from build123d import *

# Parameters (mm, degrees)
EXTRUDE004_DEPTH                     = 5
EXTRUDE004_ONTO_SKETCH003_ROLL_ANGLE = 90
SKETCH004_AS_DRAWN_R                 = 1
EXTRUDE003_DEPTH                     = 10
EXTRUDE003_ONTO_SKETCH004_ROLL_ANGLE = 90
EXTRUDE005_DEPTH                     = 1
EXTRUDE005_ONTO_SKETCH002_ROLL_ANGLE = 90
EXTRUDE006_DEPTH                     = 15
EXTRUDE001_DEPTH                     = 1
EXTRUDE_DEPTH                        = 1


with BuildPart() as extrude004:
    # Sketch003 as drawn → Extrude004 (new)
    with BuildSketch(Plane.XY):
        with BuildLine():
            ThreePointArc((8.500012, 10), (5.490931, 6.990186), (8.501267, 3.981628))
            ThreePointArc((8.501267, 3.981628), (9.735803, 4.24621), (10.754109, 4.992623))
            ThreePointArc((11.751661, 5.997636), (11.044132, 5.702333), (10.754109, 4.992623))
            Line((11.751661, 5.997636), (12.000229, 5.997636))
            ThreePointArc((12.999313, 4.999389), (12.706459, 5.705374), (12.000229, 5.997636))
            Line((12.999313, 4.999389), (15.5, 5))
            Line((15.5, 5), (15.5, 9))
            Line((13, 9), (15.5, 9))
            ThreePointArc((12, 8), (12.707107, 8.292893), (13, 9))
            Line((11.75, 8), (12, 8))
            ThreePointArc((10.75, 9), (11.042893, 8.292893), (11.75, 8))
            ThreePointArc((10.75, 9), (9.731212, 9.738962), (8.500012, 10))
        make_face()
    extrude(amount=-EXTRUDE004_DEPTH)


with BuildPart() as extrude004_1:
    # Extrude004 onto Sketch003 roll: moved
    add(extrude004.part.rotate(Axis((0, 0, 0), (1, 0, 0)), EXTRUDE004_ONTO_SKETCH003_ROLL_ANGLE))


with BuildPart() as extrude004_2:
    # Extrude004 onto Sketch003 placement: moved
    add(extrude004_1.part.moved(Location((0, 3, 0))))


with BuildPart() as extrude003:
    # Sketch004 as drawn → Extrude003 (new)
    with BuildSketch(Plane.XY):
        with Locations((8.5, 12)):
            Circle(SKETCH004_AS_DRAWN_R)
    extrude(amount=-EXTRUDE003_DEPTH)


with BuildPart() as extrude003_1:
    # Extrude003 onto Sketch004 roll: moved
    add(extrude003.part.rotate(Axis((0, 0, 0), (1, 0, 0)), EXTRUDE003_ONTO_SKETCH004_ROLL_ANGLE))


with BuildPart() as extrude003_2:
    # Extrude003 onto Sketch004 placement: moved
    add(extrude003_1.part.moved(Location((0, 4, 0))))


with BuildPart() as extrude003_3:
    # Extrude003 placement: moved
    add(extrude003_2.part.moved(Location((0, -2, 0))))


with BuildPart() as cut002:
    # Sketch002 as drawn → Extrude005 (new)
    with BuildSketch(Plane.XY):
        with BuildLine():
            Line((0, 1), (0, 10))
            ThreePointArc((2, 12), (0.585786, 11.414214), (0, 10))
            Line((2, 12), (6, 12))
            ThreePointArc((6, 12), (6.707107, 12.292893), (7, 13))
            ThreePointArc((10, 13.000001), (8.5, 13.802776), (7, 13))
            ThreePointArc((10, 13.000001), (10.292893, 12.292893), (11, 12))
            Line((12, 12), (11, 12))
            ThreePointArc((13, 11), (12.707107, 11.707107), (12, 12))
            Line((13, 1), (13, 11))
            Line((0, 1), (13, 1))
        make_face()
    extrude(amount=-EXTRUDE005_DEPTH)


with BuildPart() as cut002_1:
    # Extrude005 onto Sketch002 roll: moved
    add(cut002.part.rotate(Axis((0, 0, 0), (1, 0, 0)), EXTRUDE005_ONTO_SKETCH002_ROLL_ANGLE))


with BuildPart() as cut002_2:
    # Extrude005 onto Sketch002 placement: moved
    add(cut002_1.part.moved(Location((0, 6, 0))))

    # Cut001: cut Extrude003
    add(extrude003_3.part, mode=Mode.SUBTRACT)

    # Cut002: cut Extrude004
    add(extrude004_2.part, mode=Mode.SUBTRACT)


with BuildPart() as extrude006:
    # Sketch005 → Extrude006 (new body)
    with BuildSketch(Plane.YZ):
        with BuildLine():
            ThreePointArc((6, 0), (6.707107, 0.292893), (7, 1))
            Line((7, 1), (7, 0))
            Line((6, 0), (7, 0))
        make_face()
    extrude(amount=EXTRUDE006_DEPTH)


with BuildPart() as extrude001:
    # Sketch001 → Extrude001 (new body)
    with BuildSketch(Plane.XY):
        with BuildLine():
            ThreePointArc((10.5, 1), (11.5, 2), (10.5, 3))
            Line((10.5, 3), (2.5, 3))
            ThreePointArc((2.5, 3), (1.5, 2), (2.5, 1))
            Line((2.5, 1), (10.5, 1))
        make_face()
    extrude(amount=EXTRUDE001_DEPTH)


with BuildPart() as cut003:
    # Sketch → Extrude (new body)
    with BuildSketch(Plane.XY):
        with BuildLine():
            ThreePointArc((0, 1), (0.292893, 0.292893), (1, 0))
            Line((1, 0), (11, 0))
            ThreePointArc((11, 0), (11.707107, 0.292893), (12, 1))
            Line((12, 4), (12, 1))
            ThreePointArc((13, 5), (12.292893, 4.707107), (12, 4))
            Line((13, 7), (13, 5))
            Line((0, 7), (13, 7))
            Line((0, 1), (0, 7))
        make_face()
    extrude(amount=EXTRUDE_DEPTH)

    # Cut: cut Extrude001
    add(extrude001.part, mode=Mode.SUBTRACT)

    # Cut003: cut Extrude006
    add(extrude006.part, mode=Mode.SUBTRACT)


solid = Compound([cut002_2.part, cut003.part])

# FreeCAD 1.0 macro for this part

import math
import FreeCAD as App
import Part
import Sketcher
Q = App.Units.Quantity

doc = App.newDocument("Part")
params = doc.addObject("Spreadsheet::Sheet", "Params")
for row, (alias, value) in enumerate([
    ("sketch1_radius", "0.999999 mm"),
    ("sketch1_height", "4 mm"),
    ("sketch1_width", "2.5 mm"),
    ("sketch1_width2", "0.25 mm"),
    ("pad1_length", "5 mm"),
    ("sketch2_diameter", "2 mm"),
    ("pad2_length", "10 mm"),
    ("sketch3_radius", "0.999999 mm"),
    ("sketch3_radius2", "1.999999 mm"),
    ("sketch3_width", "13 mm"),
    ("sketch3_width2", "1 mm"),
    ("sketch3_width3", "4 mm"),
    ("pad3_length", "1 mm"),
    ("sketch4_radius", "0.999999 mm"),
    ("pad4_length", "15 mm"),
    ("sketch5_radius", "1 mm"),
    ("sketch5_width", "8 mm"),
    ("pad5_length", "1 mm"),
    ("sketch6_radius", "0.999999 mm"),
    ("sketch6_width", "10 mm"),
    ("sketch6_width2", "13 mm"),
    ("sketch6_height", "3 mm"),
    ("sketch6_height2", "2 mm"),
    ("pad6_length", "1 mm"),
], start=1):
    params.set(f"A{row}", alias)
    params.set(f"B{row}", "=" + value)
    params.setAlias(f"B{row}", alias)

body = doc.addObject("PartDesign::Body", "Body")

# Sketch on XY plane
sketch1 = body.newObject("Sketcher::SketchObject", "Sketch")
sketch1.AttachmentSupport = (doc.getObject("XY_Plane"), [""])
sketch1.MapMode = "FlatFace"
sketch1.addGeometry(Part.ArcOfCircle(Part.Circle(App.Vector(8.5, 6.99, 0), App.Vector(0, 0, 1), 3.01), math.radians(90), math.radians(270)), False)
sketch1.addGeometry(Part.ArcOfCircle(Part.Circle(App.Vector(8.5, 7, 0), App.Vector(0, 0, 1), 3.02), math.radians(-90), math.radians(-42)), False)
sketch1.addGeometry(Part.ArcOfCircle(Part.Circle(App.Vector(11.75, 5, 0), App.Vector(0, 0, 1), 1), math.radians(90), math.radians(180)), False)
sketch1.addGeometry(Part.LineSegment(App.Vector(11.75, 6, 0), App.Vector(12, 6, 0)), False)
sketch1.addGeometry(Part.ArcOfCircle(Part.Circle(App.Vector(12, 5, 0), App.Vector(0, 0, 1), 1), math.radians(0), math.radians(90)), False)
sketch1.addGeometry(Part.LineSegment(App.Vector(13, 5, 0), App.Vector(15.5, 5, 0)), False)
sketch1.addGeometry(Part.LineSegment(App.Vector(15.5, 5, 0), App.Vector(15.5, 9, 0)), False)
sketch1.addGeometry(Part.LineSegment(App.Vector(15.5, 9, 0), App.Vector(13, 9, 0)), False)
sketch1.addGeometry(Part.ArcOfCircle(Part.Circle(App.Vector(12, 9, 0), App.Vector(0, 0, 1), 1), math.radians(-90), math.radians(0)), False)
sketch1.addGeometry(Part.LineSegment(App.Vector(12, 8, 0), App.Vector(11.75, 8, 0)), False)
sketch1.addGeometry(Part.ArcOfCircle(Part.Circle(App.Vector(11.75, 9, 0), App.Vector(0, 0, 1), 1), math.radians(180), math.radians(270)), False)
sketch1.addGeometry(Part.ArcOfCircle(Part.Circle(App.Vector(8.5, 6.97, 0), App.Vector(0, 0, 1), 3.03), math.radians(42), math.radians(90)), False)
sketch1.addConstraint(Sketcher.Constraint("Coincident", 0, 2, 1, 1))
sketch1.addConstraint(Sketcher.Constraint("Coincident", 1, 2, 2, 2))
sketch1.addConstraint(Sketcher.Constraint("Coincident", 2, 1, 3, 1))
sketch1.addConstraint(Sketcher.Constraint("Coincident", 3, 2, 4, 2))
sketch1.addConstraint(Sketcher.Constraint("Coincident", 4, 1, 5, 1))
sketch1.addConstraint(Sketcher.Constraint("Coincident", 5, 2, 6, 1))
sketch1.addConstraint(Sketcher.Constraint("Coincident", 6, 2, 7, 1))
sketch1.addConstraint(Sketcher.Constraint("Coincident", 7, 2, 8, 2))
sketch1.addConstraint(Sketcher.Constraint("Tangent", 8, 1, 9, 1))
sketch1.addConstraint(Sketcher.Constraint("Tangent", 9, 2, 10, 2))
sketch1.addConstraint(Sketcher.Constraint("Coincident", 10, 1, 11, 1))
sketch1.addConstraint(Sketcher.Constraint("Coincident", 11, 2, 0, 1))
sketch1.addConstraint(Sketcher.Constraint("Horizontal", 3))
sketch1.addConstraint(Sketcher.Constraint("Vertical", 6))
sketch1.addConstraint(Sketcher.Constraint("Horizontal", 7))
sketch1.addConstraint(Sketcher.Constraint("Horizontal", 9))
sketch1.addConstraint(Sketcher.Constraint("Equal", 8, 10))
sketch1.addConstraint(Sketcher.Constraint("Horizontal", 10, 3, 6, 2))
sketch1.addConstraint(Sketcher.Constraint("Horizontal", 7, 2, 10, 1))
sketch1.addConstraint(Sketcher.Constraint("Radius", 8, Q("0.999999 mm")))
sketch1.addConstraint(Sketcher.Constraint("DistanceY", 6, 1, 6, 2, Q("4 mm")))
sketch1.addConstraint(Sketcher.Constraint("DistanceX", 7, 2, 7, 1, Q("2.5 mm")))
sketch1.addConstraint(Sketcher.Constraint("DistanceX", -1, 1, 8, 3, Q("12.000001 mm")))
sketch1.addConstraint(Sketcher.Constraint("DistanceY", -1, 1, 8, 3, Q("8.999999 mm")))
sketch1.addConstraint(Sketcher.Constraint("DistanceY", -1, 1, 11, 2, Q("10 mm")))
sketch1.addConstraint(Sketcher.Constraint("DistanceX", 9, 2, 9, 1, Q("0.25 mm")))
sketch1.addConstraint(Sketcher.Constraint("DistanceX", -1, 1, 1, 3, Q("8.499998 mm")))
sketch1.addConstraint(Sketcher.Constraint("Radius", 2, Q("0.999228 mm")))
sketch1.addConstraint(Sketcher.Constraint("Radius", 0, Q("3.009186 mm")))
sketch1.addConstraint(Sketcher.Constraint("Radius", 1, Q("3.018376 mm")))
sketch1.addConstraint(Sketcher.Constraint("Radius", 4, Q("0.998856 mm")))
sketch1.addConstraint(Sketcher.Constraint("Radius", 11, Q("3.028663 mm")))
sketch1.addConstraint(Sketcher.Constraint("DistanceX", 3, 1, 3, 2, Q("0.248568 mm")))
sketch1.addConstraint(Sketcher.Constraint("DistanceX", -1, 1, 2, 3, Q("11.75332 mm")))
sketch1.addConstraint(Sketcher.Constraint("DistanceY", -1, 1, 2, 3, Q("4.998409 mm")))
sketch1.addConstraint(Sketcher.Constraint("DistanceX", -1, 1, 2, 1, Q("11.751661 mm")))
sketch1.addConstraint(Sketcher.Constraint("DistanceY", -1, 1, 4, 1, Q("4.999389 mm")))
sketch1.addConstraint(Sketcher.Constraint("DistanceX", -1, 1, 11, 2, Q("8.500012 mm")))
sketch1.addConstraint(Sketcher.Constraint("DistanceX", 1, 3, 0, 3, Q("0.000119 mm")))
sketch1.addConstraint(Sketcher.Constraint("DistanceX", 0, 3, 4, 3, Q("3.500341 mm")))
sketch1.addConstraint(Sketcher.Constraint("DistanceX", 0, 3, 0, 2, Q("0.00115 mm")))
sketch1.setExpression("Constraints[19]", "Params.sketch1_radius")
sketch1.setExpression("Constraints[20]", "Params.sketch1_height")
sketch1.setExpression("Constraints[21]", "Params.sketch1_width")
sketch1.setExpression("Constraints[25]", "Params.sketch1_width2")
pad1 = body.newObject("PartDesign::Pad", "Pad")
pad1.Profile = sketch1
pad1.setExpression("Length", "Params.pad1_length")
pad1.Reversed = True
body2 = doc.addObject("PartDesign::Body", "Body001")
doc.recompute()

body.Placement = App.Placement(App.Vector(0, 0, 0), App.Rotation(App.Vector(1, 0, 0), 90))
boolean = body2.newObject("PartDesign::Boolean", "Boolean")
boolean.Type = "Fuse"
boolean.addObjects([body])
body3 = doc.addObject("PartDesign::Body", "Body002")
doc.recompute()

body2.Placement = App.Placement(App.Vector(0, 3, 0), App.Rotation(App.Vector(0, 0, 1), 0))
boolean2 = body3.newObject("PartDesign::Boolean", "Boolean001")
boolean2.Type = "Fuse"
boolean2.addObjects([body2])
body4 = doc.addObject("PartDesign::Body", "Body003")

# Sketch on XY plane
sketch2 = body4.newObject("Sketcher::SketchObject", "Sketch001")
sketch2.AttachmentSupport = (doc.getObject("XY_Plane003"), [""])
sketch2.MapMode = "FlatFace"
sketch2.addGeometry(Part.Circle(App.Vector(8.5, 12, 0), App.Vector(0, 0, 1), 1), False)
sketch2.addConstraint(Sketcher.Constraint("Diameter", 0, Q("2 mm")))
sketch2.addConstraint(Sketcher.Constraint("DistanceY", -1, 1, 0, 3, Q("12 mm")))
sketch2.addConstraint(Sketcher.Constraint("DistanceX", -1, 1, 0, 3, Q("8.5 mm")))
sketch2.setExpression("Constraints[0]", "Params.sketch2_diameter")
pad2 = body4.newObject("PartDesign::Pad", "Pad001")
pad2.Profile = sketch2
pad2.setExpression("Length", "Params.pad2_length")
pad2.Reversed = True
body5 = doc.addObject("PartDesign::Body", "Body004")
doc.recompute()

body4.Placement = App.Placement(App.Vector(0, 0, 0), App.Rotation(App.Vector(1, 0, 0), 90))
boolean3 = body5.newObject("PartDesign::Boolean", "Boolean002")
boolean3.Type = "Fuse"
boolean3.addObjects([body4])
body6 = doc.addObject("PartDesign::Body", "Body005")
doc.recompute()

body5.Placement = App.Placement(App.Vector(0, 4, 0), App.Rotation(App.Vector(0, 0, 1), 0))
boolean4 = body6.newObject("PartDesign::Boolean", "Boolean003")
boolean4.Type = "Fuse"
boolean4.addObjects([body5])
body7 = doc.addObject("PartDesign::Body", "Body006")
doc.recompute()

body6.Placement = App.Placement(App.Vector(0, -2, 0), App.Rotation(App.Vector(0, 0, 1), 0))
boolean5 = body7.newObject("PartDesign::Boolean", "Boolean004")
boolean5.Type = "Fuse"
boolean5.addObjects([body6])
body8 = doc.addObject("PartDesign::Body", "Body007")

# Sketch on XY plane
sketch3 = body8.newObject("Sketcher::SketchObject", "Sketch002")
sketch3.AttachmentSupport = (doc.getObject("XY_Plane007"), [""])
sketch3.MapMode = "FlatFace"
sketch3.addGeometry(Part.LineSegment(App.Vector(0, 10, 0), App.Vector(0, 1, 0)), False)
sketch3.addGeometry(Part.LineSegment(App.Vector(0, 1, 0), App.Vector(13, 1, 0)), False)
sketch3.addGeometry(Part.LineSegment(App.Vector(13, 1, 0), App.Vector(13, 11, 0)), False)
sketch3.addGeometry(Part.ArcOfCircle(Part.Circle(App.Vector(12, 11, 0), App.Vector(0, 0, 1), 1), math.radians(0), math.radians(90)), False)
sketch3.addGeometry(Part.LineSegment(App.Vector(12, 12, 0), App.Vector(11, 12, 0)), False)
sketch3.addGeometry(Part.ArcOfCircle(Part.Circle(App.Vector(11, 13, 0), App.Vector(0, 0, 1), 1), math.radians(180), math.radians(270)), False)
sketch3.addGeometry(Part.ArcOfCircle(Part.Circle(App.Vector(8.5, 12, 0), App.Vector(0, 0, 1), 1.8), math.radians(34), math.radians(146)), False)
sketch3.addGeometry(Part.ArcOfCircle(Part.Circle(App.Vector(6, 13, 0), App.Vector(0, 0, 1), 1), math.radians(-90), math.radians(0)), False)
sketch3.addGeometry(Part.LineSegment(App.Vector(6, 12, 0), App.Vector(2, 12, 0)), False)
sketch3.addGeometry(Part.ArcOfCircle(Part.Circle(App.Vector(2, 10, 0), App.Vector(0, 0, 1), 2), math.radians(90), math.radians(180)), False)
sketch3.addConstraint(Sketcher.Constraint("Coincident", 0, 2, 1, 1))
sketch3.addConstraint(Sketcher.Constraint("Coincident", 1, 2, 2, 1))
sketch3.addConstraint(Sketcher.Constraint("Tangent", 2, 2, 3, 1))
sketch3.addConstraint(Sketcher.Constraint("Tangent", 3, 2, 4, 1))
sketch3.addConstraint(Sketcher.Constraint("Tangent", 4, 2, 5, 2))
sketch3.addConstraint(Sketcher.Constraint("Coincident", 5, 1, 6, 1))
sketch3.addConstraint(Sketcher.Constraint("Coincident", 6, 2, 7, 2))
sketch3.addConstraint(Sketcher.Constraint("Tangent", 7, 1, 8, 1))
sketch3.addConstraint(Sketcher.Constraint("Tangent", 8, 2, 9, 1))
sketch3.addConstraint(Sketcher.Constraint("Tangent", 9, 2, 0, 1))
sketch3.addConstraint(Sketcher.Constraint("Vertical", 0))
sketch3.addConstraint(Sketcher.Constraint("Horizontal", 1))
sketch3.addConstraint(Sketcher.Constraint("Vertical", 2))
sketch3.addConstraint(Sketcher.Constraint("Horizontal", 4))
sketch3.addConstraint(Sketcher.Constraint("Horizontal", 8))
sketch3.addConstraint(Sketcher.Constraint("Equal", 3, 5))
sketch3.addConstraint(Sketcher.Constraint("Equal", 5, 7))
sketch3.addConstraint(Sketcher.Constraint("PointOnObject", 0, 2, -2))
sketch3.addConstraint(Sketcher.Constraint("Horizontal", 5, 3, 7, 3))
sketch3.addConstraint(Sketcher.Constraint("Horizontal", 6, 3, 3, 2))
sketch3.addConstraint(Sketcher.Constraint("Horizontal", 7, 3, 5, 1))
sketch3.addConstraint(Sketcher.Constraint("Horizontal", 5, 1, 6, 2))
sketch3.addConstraint(Sketcher.Constraint("Radius", 3, Q("0.999999 mm")))
sketch3.addConstraint(Sketcher.Constraint("Radius", 9, Q("1.999999 mm")))
sketch3.addConstraint(Sketcher.Constraint("DistanceX", 1, 1, 1, 2, Q("13 mm")))
sketch3.addConstraint(Sketcher.Constraint("DistanceX", 4, 2, 4, 1, Q("1 mm")))
sketch3.addConstraint(Sketcher.Constraint("DistanceX", 8, 2, 8, 1, Q("4 mm")))
sketch3.addConstraint(Sketcher.Constraint("DistanceY", 0, 2, 0, 1, Q("9 mm")))
sketch3.addConstraint(Sketcher.Constraint("DistanceY", -1, 1, 3, 3, Q("11.000001 mm")))
sketch3.setExpression("Constraints[22]", "Params.sketch3_radius")
sketch3.setExpression("Constraints[23]", "Params.sketch3_radius2")
sketch3.setExpression("Constraints[24]", "Params.sketch3_width")
sketch3.setExpression("Constraints[25]", "Params.sketch3_width2")
sketch3.setExpression("Constraints[26]", "Params.sketch3_width3")
pad3 = body8.newObject("PartDesign::Pad", "Pad002")
pad3.Profile = sketch3
pad3.setExpression("Length", "Params.pad3_length")
pad3.Reversed = True
body9 = doc.addObject("PartDesign::Body", "Body008")
doc.recompute()

body8.Placement = App.Placement(App.Vector(0, 0, 0), App.Rotation(App.Vector(1, 0, 0), 90))
boolean6 = body9.newObject("PartDesign::Boolean", "Boolean005")
boolean6.Type = "Fuse"
boolean6.addObjects([body8])
body10 = doc.addObject("PartDesign::Body", "Body009")
doc.recompute()

body9.Placement = App.Placement(App.Vector(0, 6, 0), App.Rotation(App.Vector(0, 0, 1), 0))
boolean7 = body10.newObject("PartDesign::Boolean", "Boolean006")
boolean7.Type = "Fuse"
boolean7.addObjects([body9])
doc.recompute()

boolean8 = body10.newObject("PartDesign::Boolean", "Boolean007")
boolean8.Type = "Cut"
boolean8.addObjects([body7])
doc.recompute()

boolean9 = body10.newObject("PartDesign::Boolean", "Boolean008")
boolean9.Type = "Cut"
boolean9.addObjects([body3])
body11 = doc.addObject("PartDesign::Body", "Body010")

# Sketch on YZ plane
sketch4 = body11.newObject("Sketcher::SketchObject", "Sketch003")
sketch4.AttachmentSupport = (doc.getObject("YZ_Plane010"), [""])
sketch4.MapMode = "FlatFace"
sketch4.addGeometry(Part.ArcOfCircle(Part.Circle(App.Vector(6, 1, 0), App.Vector(0, 0, 1), 1), math.radians(-90), math.radians(0)), False)
sketch4.addGeometry(Part.LineSegment(App.Vector(6, 0, 0), App.Vector(7, 0, 0)), False)
sketch4.addGeometry(Part.LineSegment(App.Vector(7, 0, 0), App.Vector(7, 1, 0)), False)
sketch4.addConstraint(Sketcher.Constraint("Tangent", 0, 1, 1, 1))
sketch4.addConstraint(Sketcher.Constraint("Coincident", 1, 2, 2, 1))
sketch4.addConstraint(Sketcher.Constraint("Tangent", 2, 2, 0, 2))
sketch4.addConstraint(Sketcher.Constraint("Horizontal", 1))
sketch4.addConstraint(Sketcher.Constraint("Vertical", 2))
sketch4.addConstraint(Sketcher.Constraint("PointOnObject", 0, 1, -1))
sketch4.addConstraint(Sketcher.Constraint("Radius", 0, Q("0.999999 mm")))
sketch4.addConstraint(Sketcher.Constraint("DistanceX", -1, 1, 0, 3, Q("6.000001 mm")))
sketch4.setExpression("Constraints[6]", "Params.sketch4_radius")
pad4 = body11.newObject("PartDesign::Pad", "Pad003")
pad4.Profile = sketch4
pad4.setExpression("Length", "Params.pad4_length")
body12 = doc.addObject("PartDesign::Body", "Body011")

# Sketch on XY plane
sketch5 = body12.newObject("Sketcher::SketchObject", "Sketch004")
sketch5.AttachmentSupport = (doc.getObject("XY_Plane011"), [""])
sketch5.MapMode = "FlatFace"
sketch5.addGeometry(Part.ArcOfCircle(Part.Circle(App.Vector(10.5, 2, 0), App.Vector(0, 0, 1), 1), math.radians(-90), math.radians(90)), False)
sketch5.addGeometry(Part.LineSegment(App.Vector(10.5, 3, 0), App.Vector(2.5, 3, 0)), False)
sketch5.addGeometry(Part.ArcOfCircle(Part.Circle(App.Vector(2.5, 2, 0), App.Vector(0, 0, 1), 1), math.radians(90), math.radians(270)), False)
sketch5.addGeometry(Part.LineSegment(App.Vector(2.5, 1, 0), App.Vector(10.5, 1, 0)), False)
sketch5.addConstraint(Sketcher.Constraint("Tangent", 0, 2, 1, 1))
sketch5.addConstraint(Sketcher.Constraint("Tangent", 1, 2, 2, 1))
sketch5.addConstraint(Sketcher.Constraint("Tangent", 2, 2, 3, 1))
sketch5.addConstraint(Sketcher.Constraint("Tangent", 3, 2, 0, 1))
sketch5.addConstraint(Sketcher.Constraint("Horizontal", 1))
sketch5.addConstraint(Sketcher.Constraint("Horizontal", 3))
sketch5.addConstraint(Sketcher.Constraint("Radius", 0, Q("1 mm")))
sketch5.addConstraint(Sketcher.Constraint("DistanceX", 1, 2, 1, 1, Q("8 mm")))
sketch5.addConstraint(Sketcher.Constraint("DistanceY", -1, 1, 0, 3, Q("2 mm")))
sketch5.addConstraint(Sketcher.Constraint("DistanceX", -1, 1, 0, 3, Q("10.5 mm")))
sketch5.setExpression("Constraints[6]", "Params.sketch5_radius")
sketch5.setExpression("Constraints[7]", "Params.sketch5_width")
pad5 = body12.newObject("PartDesign::Pad", "Pad004")
pad5.Profile = sketch5
pad5.setExpression("Length", "Params.pad5_length")
body13 = doc.addObject("PartDesign::Body", "Body012")

# Sketch on XY plane
sketch6 = body13.newObject("Sketcher::SketchObject", "Sketch005")
sketch6.AttachmentSupport = (doc.getObject("XY_Plane012"), [""])
sketch6.MapMode = "FlatFace"
sketch6.addGeometry(Part.ArcOfCircle(Part.Circle(App.Vector(1, 1, 0), App.Vector(0, 0, 1), 1), math.radians(180), math.radians(270)), False)
sketch6.addGeometry(Part.LineSegment(App.Vector(1, 0, 0), App.Vector(11, 0, 0)), False)
sketch6.addGeometry(Part.ArcOfCircle(Part.Circle(App.Vector(11, 1, 0), App.Vector(0, 0, 1), 1), math.radians(-90), math.radians(0)), False)
sketch6.addGeometry(Part.LineSegment(App.Vector(12, 1, 0), App.Vector(12, 4, 0)), False)
sketch6.addGeometry(Part.ArcOfCircle(Part.Circle(App.Vector(13, 4, 0), App.Vector(0, 0, 1), 1), math.radians(90), math.radians(180)), False)
sketch6.addGeometry(Part.LineSegment(App.Vector(13, 5, 0), App.Vector(13, 7, 0)), False)
sketch6.addGeometry(Part.LineSegment(App.Vector(13, 7, 0), App.Vector(0, 7, 0)), False)
sketch6.addGeometry(Part.LineSegment(App.Vector(0, 7, 0), App.Vector(0, 1, 0)), False)
sketch6.addConstraint(Sketcher.Constraint("Tangent", 0, 2, 1, 1))
sketch6.addConstraint(Sketcher.Constraint("Tangent", 1, 2, 2, 1))
sketch6.addConstraint(Sketcher.Constraint("Tangent", 2, 2, 3, 1))
sketch6.addConstraint(Sketcher.Constraint("Tangent", 3, 2, 4, 2))
sketch6.addConstraint(Sketcher.Constraint("Coincident", 4, 1, 5, 1))
sketch6.addConstraint(Sketcher.Constraint("Coincident", 5, 2, 6, 1))
sketch6.addConstraint(Sketcher.Constraint("Coincident", 6, 2, 7, 1))
sketch6.addConstraint(Sketcher.Constraint("Tangent", 7, 2, 0, 1))
sketch6.addConstraint(Sketcher.Constraint("Horizontal", 1))
sketch6.addConstraint(Sketcher.Constraint("Vertical", 3))
sketch6.addConstraint(Sketcher.Constraint("Vertical", 5))
sketch6.addConstraint(Sketcher.Constraint("Horizontal", 6))
sketch6.addConstraint(Sketcher.Constraint("Vertical", 7))
sketch6.addConstraint(Sketcher.Constraint("Equal", 0, 2))
sketch6.addConstraint(Sketcher.Constraint("Equal", 2, 4))
sketch6.addConstraint(Sketcher.Constraint("PointOnObject", 0, 2, -1))
sketch6.addConstraint(Sketcher.Constraint("PointOnObject", 6, 2, -2))
sketch6.addConstraint(Sketcher.Constraint("Radius", 0, Q("0.999999 mm")))
sketch6.addConstraint(Sketcher.Constraint("DistanceX", 1, 1, 1, 2, Q("10 mm")))
sketch6.addConstraint(Sketcher.Constraint("DistanceX", 6, 2, 6, 1, Q("13 mm")))
sketch6.addConstraint(Sketcher.Constraint("DistanceY", 3, 1, 3, 2, Q("3 mm")))
sketch6.addConstraint(Sketcher.Constraint("DistanceY", 5, 1, 5, 2, Q("2 mm")))
sketch6.setExpression("Constraints[17]", "Params.sketch6_radius")
sketch6.setExpression("Constraints[18]", "Params.sketch6_width")
sketch6.setExpression("Constraints[19]", "Params.sketch6_width2")
sketch6.setExpression("Constraints[20]", "Params.sketch6_height")
sketch6.setExpression("Constraints[21]", "Params.sketch6_height2")
pad6 = body13.newObject("PartDesign::Pad", "Pad005")
pad6.Profile = sketch6
pad6.setExpression("Length", "Params.pad6_length")
doc.recompute()

boolean10 = body13.newObject("PartDesign::Boolean", "Boolean009")
boolean10.Type = "Cut"
boolean10.addObjects([body12])
doc.recompute()

boolean11 = body13.newObject("PartDesign::Boolean", "Boolean010")
boolean11.Type = "Cut"
boolean11.addObjects([body11])

doc.recompute()
